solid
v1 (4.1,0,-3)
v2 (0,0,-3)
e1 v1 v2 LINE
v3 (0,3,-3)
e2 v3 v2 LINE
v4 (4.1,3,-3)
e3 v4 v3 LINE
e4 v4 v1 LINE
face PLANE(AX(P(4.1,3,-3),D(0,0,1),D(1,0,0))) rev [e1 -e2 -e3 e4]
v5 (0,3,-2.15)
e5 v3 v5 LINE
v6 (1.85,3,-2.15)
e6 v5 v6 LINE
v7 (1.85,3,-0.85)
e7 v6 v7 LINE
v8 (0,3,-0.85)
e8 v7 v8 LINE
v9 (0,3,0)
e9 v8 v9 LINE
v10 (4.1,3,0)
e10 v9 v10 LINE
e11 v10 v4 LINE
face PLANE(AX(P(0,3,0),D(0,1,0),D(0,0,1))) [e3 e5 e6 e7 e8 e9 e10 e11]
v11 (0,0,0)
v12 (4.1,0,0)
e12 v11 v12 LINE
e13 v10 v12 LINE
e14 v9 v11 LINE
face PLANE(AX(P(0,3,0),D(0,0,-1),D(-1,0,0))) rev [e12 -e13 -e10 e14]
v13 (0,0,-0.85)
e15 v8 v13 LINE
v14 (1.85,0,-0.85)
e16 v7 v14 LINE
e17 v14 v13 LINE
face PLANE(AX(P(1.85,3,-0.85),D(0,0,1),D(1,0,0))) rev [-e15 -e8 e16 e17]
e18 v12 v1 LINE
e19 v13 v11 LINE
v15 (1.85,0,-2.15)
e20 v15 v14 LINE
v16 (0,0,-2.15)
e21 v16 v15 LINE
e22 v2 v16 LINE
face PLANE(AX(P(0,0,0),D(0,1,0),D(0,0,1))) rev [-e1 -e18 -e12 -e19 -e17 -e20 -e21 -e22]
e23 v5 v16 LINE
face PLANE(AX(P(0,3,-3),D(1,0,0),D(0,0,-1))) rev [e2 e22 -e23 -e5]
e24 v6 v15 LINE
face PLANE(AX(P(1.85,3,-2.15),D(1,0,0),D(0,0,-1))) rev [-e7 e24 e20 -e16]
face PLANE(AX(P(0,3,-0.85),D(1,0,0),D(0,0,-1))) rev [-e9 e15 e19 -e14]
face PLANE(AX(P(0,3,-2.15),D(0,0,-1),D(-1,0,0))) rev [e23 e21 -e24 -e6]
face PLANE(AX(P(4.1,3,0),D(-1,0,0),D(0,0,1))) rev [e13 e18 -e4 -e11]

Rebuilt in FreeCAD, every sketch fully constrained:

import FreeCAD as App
import Part
import Sketcher
from FreeCAD import Vector


def add_polygon(sketch, points):
    """Adds a closed chain of lines whose ends are joined by coincident constraints."""
    first, n = sketch.GeometryCount, len(points)
    for a, b in zip(points, points[1:] + points[:1]):
        sketch.addGeometry(Part.LineSegment(App.Vector(*a, 0), App.Vector(*b, 0)), False)
    for i in range(n):
        sketch.addConstraint(Sketcher.Constraint("Coincident", first + i, 2, first + (i + 1) % n, 1))

doc = App.newDocument("Part")
body = doc.addObject("PartDesign::Body", "Body")

# Sketch on XZ plane
sketch1 = body.newObject("Sketcher::SketchObject", "Sketch")
sketch1.AttachmentSupport = (doc.getObject("XZ_Plane"), [""])
sketch1.MapMode = "FlatFace"
add_polygon(sketch1, [(0, 0), (4.1, 0), (4.1, -3), (0, -3), (0, -2.1), (1.9, -2.1), (1.9, -0.8), (0, -0.8)])  # lines 0-7
sketch1.addConstraint(Sketcher.Constraint("Horizontal", 0))
sketch1.addConstraint(Sketcher.Constraint("Vertical", 1))
sketch1.addConstraint(Sketcher.Constraint("Horizontal", 2))
sketch1.addConstraint(Sketcher.Constraint("Vertical", 3))
sketch1.addConstraint(Sketcher.Constraint("Horizontal", 4))
sketch1.addConstraint(Sketcher.Constraint("Vertical", 5))
sketch1.addConstraint(Sketcher.Constraint("Horizontal", 6))
sketch1.addConstraint(Sketcher.Constraint("Vertical", 7))
sketch1.addConstraint(Sketcher.Constraint("Coincident", 7, 2, -1, 1))
sketch1.addConstraint(Sketcher.Constraint("PointOnObject", 2, 2, -2))
sketch1.addConstraint(Sketcher.Constraint("Equal", 3, 7))
sketch1.addConstraint(Sketcher.Constraint("DistanceY", 1, 2, 1, 1, 3.0))
sketch1.addConstraint(Sketcher.Constraint("DistanceX", 0, 1, 0, 2, 4.1))
sketch1.addConstraint(Sketcher.Constraint("DistanceY", 5, 1, 5, 2, 1.3))
sketch1.addConstraint(Sketcher.Constraint("DistanceX", 4, 1, 4, 2, 1.85))
pad1 = body.newObject("PartDesign::Pad", "Pad")
pad1.Profile = sketch1
pad1.Length = 3
pad1.Reversed = True

doc.recompute()
